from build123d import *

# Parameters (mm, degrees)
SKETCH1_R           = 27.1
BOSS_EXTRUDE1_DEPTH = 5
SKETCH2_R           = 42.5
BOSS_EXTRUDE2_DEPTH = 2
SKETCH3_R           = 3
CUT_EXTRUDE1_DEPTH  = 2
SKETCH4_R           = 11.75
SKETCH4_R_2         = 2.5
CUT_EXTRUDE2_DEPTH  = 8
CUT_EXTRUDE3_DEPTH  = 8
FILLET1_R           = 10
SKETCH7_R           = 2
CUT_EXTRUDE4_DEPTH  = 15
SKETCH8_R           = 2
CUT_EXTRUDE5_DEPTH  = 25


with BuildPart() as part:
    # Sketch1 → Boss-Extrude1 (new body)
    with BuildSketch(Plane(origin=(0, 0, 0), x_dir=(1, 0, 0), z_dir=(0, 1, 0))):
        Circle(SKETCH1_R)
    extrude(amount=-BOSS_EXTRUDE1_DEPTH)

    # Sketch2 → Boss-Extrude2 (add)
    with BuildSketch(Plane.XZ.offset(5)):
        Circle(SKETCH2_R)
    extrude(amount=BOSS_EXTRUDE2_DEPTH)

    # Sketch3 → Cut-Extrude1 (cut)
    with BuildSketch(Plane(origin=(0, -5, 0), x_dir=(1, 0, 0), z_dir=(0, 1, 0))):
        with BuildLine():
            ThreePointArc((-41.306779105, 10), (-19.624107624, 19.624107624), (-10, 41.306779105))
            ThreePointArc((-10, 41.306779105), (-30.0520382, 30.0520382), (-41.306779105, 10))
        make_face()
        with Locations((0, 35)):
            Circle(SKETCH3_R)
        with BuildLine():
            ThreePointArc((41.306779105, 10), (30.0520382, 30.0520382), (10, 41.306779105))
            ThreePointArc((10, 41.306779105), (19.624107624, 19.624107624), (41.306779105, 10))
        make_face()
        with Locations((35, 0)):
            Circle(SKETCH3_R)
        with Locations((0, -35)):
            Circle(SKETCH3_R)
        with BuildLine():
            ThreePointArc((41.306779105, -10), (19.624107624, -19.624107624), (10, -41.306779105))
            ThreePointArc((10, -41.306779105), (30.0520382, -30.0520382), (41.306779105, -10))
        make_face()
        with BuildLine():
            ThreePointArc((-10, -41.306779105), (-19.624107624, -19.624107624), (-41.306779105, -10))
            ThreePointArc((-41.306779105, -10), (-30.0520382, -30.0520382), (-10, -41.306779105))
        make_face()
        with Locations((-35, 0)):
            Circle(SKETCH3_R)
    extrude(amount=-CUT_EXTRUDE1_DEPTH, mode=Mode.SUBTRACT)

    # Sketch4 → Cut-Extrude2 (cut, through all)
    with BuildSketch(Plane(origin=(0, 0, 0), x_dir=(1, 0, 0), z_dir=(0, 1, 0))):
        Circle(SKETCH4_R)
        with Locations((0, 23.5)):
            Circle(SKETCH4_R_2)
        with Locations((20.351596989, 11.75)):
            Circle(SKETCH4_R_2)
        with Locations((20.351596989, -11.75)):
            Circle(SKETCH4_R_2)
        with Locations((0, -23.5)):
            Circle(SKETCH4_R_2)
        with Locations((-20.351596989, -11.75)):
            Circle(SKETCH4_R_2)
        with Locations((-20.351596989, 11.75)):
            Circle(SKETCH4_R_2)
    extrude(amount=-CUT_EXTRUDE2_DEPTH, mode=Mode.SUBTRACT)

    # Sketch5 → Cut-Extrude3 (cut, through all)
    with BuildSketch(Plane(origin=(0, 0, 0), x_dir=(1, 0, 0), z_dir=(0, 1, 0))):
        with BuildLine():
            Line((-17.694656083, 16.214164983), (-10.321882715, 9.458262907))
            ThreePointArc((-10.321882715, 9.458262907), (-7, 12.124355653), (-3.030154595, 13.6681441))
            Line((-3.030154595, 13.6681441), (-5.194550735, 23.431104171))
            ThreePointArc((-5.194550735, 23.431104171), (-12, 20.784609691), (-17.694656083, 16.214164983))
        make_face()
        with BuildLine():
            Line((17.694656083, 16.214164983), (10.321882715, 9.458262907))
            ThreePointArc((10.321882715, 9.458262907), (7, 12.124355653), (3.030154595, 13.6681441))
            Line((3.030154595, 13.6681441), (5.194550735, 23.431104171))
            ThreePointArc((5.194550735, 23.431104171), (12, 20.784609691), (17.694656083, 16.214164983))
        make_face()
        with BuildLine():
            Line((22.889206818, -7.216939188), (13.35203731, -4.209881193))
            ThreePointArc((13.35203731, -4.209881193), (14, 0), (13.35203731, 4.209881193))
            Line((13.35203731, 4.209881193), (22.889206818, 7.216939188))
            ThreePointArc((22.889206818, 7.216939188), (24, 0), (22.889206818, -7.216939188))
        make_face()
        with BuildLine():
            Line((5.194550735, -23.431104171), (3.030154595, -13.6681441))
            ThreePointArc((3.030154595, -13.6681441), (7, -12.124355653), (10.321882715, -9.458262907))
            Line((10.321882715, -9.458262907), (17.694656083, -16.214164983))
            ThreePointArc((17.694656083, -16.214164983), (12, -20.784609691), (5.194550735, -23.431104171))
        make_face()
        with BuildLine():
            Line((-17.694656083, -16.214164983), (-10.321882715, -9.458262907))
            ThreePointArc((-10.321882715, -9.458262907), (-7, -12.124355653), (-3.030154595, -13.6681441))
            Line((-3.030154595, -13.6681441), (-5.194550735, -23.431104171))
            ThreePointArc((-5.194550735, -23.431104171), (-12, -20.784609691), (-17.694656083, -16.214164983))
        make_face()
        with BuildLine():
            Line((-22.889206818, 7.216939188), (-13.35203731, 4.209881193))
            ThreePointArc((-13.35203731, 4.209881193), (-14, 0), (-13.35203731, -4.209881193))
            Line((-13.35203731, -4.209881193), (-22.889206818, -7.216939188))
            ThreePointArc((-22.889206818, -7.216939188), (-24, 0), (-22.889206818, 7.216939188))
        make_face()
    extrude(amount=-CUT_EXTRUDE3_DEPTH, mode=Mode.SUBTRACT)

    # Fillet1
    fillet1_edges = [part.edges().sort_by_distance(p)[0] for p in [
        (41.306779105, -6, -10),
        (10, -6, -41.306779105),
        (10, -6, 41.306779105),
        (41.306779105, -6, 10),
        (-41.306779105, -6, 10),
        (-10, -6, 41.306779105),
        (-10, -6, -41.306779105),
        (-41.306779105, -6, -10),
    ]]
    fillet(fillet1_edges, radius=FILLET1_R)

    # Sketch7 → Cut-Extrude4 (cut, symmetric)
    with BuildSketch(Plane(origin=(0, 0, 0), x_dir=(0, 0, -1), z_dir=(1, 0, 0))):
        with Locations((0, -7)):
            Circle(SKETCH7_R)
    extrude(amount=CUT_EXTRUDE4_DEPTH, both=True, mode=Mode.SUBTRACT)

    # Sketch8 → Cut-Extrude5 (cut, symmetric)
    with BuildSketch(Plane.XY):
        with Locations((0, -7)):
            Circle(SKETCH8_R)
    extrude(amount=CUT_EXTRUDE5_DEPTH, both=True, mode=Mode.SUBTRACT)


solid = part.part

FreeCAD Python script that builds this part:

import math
import FreeCAD as App
import Part
import Sketcher

V = App.Vector
Q = App.Units.Quantity


def edges_at(feature, points):
    """Names of the edges that pass closest to the given points."""
    edges = feature.Shape.Edges
    near = lambda p: min(range(len(edges)), key=lambda i: edges[i].distToShape(Part.Vertex(*p))[0])
    return sorted({f"Edge{near(p) + 1}" for p in points})

doc = App.newDocument("Part")
body = doc.addObject("PartDesign::Body", "Body")

# Sketch on XZ plane
sketch1 = body.newObject("Sketcher::SketchObject", "Sketch")
sketch1.AttachmentSupport = (doc.getObject("XZ_Plane"), [""])
sketch1.MapMode = "FlatFace"
sketch1.addGeometry(Part.Circle(V(0, 0, 0), V(0, 0, 1), 27.1), False)
sketch1.addConstraint(Sketcher.Constraint("Coincident", 0, 3, -1, 1))
sketch1.addConstraint(Sketcher.Constraint("Diameter", 0, Q("54.2 mm")))
pad1 = body.newObject("PartDesign::Pad", "Pad")
pad1.Profile = sketch1
pad1.Length = 5

# Sketch on XZ plane
sketch2 = body.newObject("Sketcher::SketchObject", "Sketch001")
sketch2.AttachmentSupport = (doc.getObject("XZ_Plane"), [""])
sketch2.MapMode = "FlatFace"
sketch2.AttachmentOffset = App.Placement(V(0, 0, 5), App.Rotation())
sketch2.addGeometry(Part.Circle(V(0, 0, 0), V(0, 0, 1), 42.5), False)
sketch2.addConstraint(Sketcher.Constraint("Coincident", 0, 3, -1, 1))
sketch2.addConstraint(Sketcher.Constraint("Diameter", 0, Q("85 mm")))
pad2 = body.newObject("PartDesign::Pad", "Pad001")
pad2.Profile = sketch2
pad2.Length = 2

# Sketch on XZ plane
sketch3 = body.newObject("Sketcher::SketchObject", "Sketch002")
sketch3.AttachmentSupport = (doc.getObject("XZ_Plane"), [""])
sketch3.MapMode = "FlatFace"
sketch3.AttachmentOffset = App.Placement(V(0, 0, 5), App.Rotation())
sketch3.addGeometry(Part.ArcOfCircle(Part.Circle(V(-42.958631, -42.958631, 0), V(0, 0, 1), 33), math.radians(2.869204), math.radians(87.130796)), False)
sketch3.addGeometry(Part.ArcOfCircle(Part.Circle(V(0, 0, 0), V(0, 0, 1), 42.5), math.radians(-166.391039), math.radians(-103.608961)), False)
sketch3.addGeometry(Part.Circle(V(0, -35, 0), V(0, 0, 1), 3), False)
sketch3.addGeometry(Part.ArcOfCircle(Part.Circle(V(0, 0, 0), V(0, 0, 1), 42.5), math.radians(-76.391039), math.radians(-13.608961)), False)
sketch3.addGeometry(Part.ArcOfCircle(Part.Circle(V(42.958631, -42.958631, 0), V(0, 0, 1), 33), math.radians(92.869204), math.radians(177.130796)), False)
sketch3.addGeometry(Part.Circle(V(35, 0, 0), V(0, 0, 1), 3), False)
sketch3.addGeometry(Part.Circle(V(0, 35, 0), V(0, 0, 1), 3), False)
sketch3.addGeometry(Part.ArcOfCircle(Part.Circle(V(42.958631, 42.958631, 0), V(0, 0, 1), 33), math.radians(-177.130796), math.radians(-92.869204)), False)
sketch3.addGeometry(Part.ArcOfCircle(Part.Circle(V(0, 0, 0), V(0, 0, 1), 42.5), math.radians(13.608961), math.radians(76.391039)), False)
sketch3.addGeometry(Part.ArcOfCircle(Part.Circle(V(-42.958631, 42.958631, 0), V(0, 0, 1), 33), math.radians(-87.130796), math.radians(-2.869204)), False)
sketch3.addGeometry(Part.ArcOfCircle(Part.Circle(V(0, 0, 0), V(0, 0, 1), 42.5), math.radians(103.608961), math.radians(166.391039)), False)
sketch3.addGeometry(Part.Circle(V(-35, 0, 0), V(0, 0, 1), 3), False)
sketch3.addConstraint(Sketcher.Constraint("Coincident", 0, 1, 1, 2))
sketch3.addConstraint(Sketcher.Constraint("Coincident", 1, 1, 0, 2))
sketch3.addConstraint(Sketcher.Constraint("Coincident", 3, 1, 4, 2))
sketch3.addConstraint(Sketcher.Constraint("Coincident", 4, 1, 3, 2))
sketch3.addConstraint(Sketcher.Constraint("Coincident", 7, 1, 8, 2))
sketch3.addConstraint(Sketcher.Constraint("Coincident", 8, 1, 7, 2))
sketch3.addConstraint(Sketcher.Constraint("Coincident", 9, 1, 10, 2))
sketch3.addConstraint(Sketcher.Constraint("Coincident", 10, 1, 9, 2))
sketch3.addConstraint(Sketcher.Constraint("Coincident", 1, 3, -1, 1))
sketch3.addConstraint(Sketcher.Constraint("Coincident", 3, 3, -1, 1))
sketch3.addConstraint(Sketcher.Constraint("Coincident", 8, 3, -1, 1))
sketch3.addConstraint(Sketcher.Constraint("Coincident", 10, 3, -1, 1))
sketch3.addConstraint(Sketcher.Constraint("Equal", 1, 3))
sketch3.addConstraint(Sketcher.Constraint("Equal", 0, 4))
sketch3.addConstraint(Sketcher.Constraint("Equal", 2, 5))
sketch3.addConstraint(Sketcher.Constraint("Equal", 5, 6))
sketch3.addConstraint(Sketcher.Constraint("Equal", 4, 7))
sketch3.addConstraint(Sketcher.Constraint("Equal", 3, 8))
sketch3.addConstraint(Sketcher.Constraint("Equal", 7, 9))
sketch3.addConstraint(Sketcher.Constraint("Equal", 8, 10))
sketch3.addConstraint(Sketcher.Constraint("Equal", 6, 11))
sketch3.addConstraint(Sketcher.Constraint("Symmetric", 2, 3, 6, 3, -1, 1))
sketch3.addConstraint(Sketcher.Constraint("Symmetric", 0, 3, 7, 3, -1, 1))
sketch3.addConstraint(Sketcher.Constraint("Symmetric", 4, 3, 9, 3, -1, 1))
sketch3.addConstraint(Sketcher.Constraint("Symmetric", 5, 3, 11, 3, -1, 1))
sketch3.addConstraint(Sketcher.Constraint("Symmetric", 0, 3, 4, 3, -2))
sketch3.addConstraint(Sketcher.Constraint("PointOnObject", 2, 3, -2))
sketch3.addConstraint(Sketcher.Constraint("PointOnObject", 5, 3, -1))
sketch3.addConstraint(Sketcher.Constraint("Diameter", 2, Q("6 mm")))
sketch3.addConstraint(Sketcher.Constraint("Radius", 0, Q("33 mm")))
sketch3.addConstraint(Sketcher.Constraint("Radius", 1, Q("42.5 mm")))
sketch3.addConstraint(Sketcher.Constraint("DistanceY", 2, 3, -1, 1, Q("35 mm")))
sketch3.addConstraint(Sketcher.Constraint("DistanceX", -1, 1, 5, 3, Q("35 mm")))
sketch3.addConstraint(Sketcher.Constraint("DistanceX", 0, 1, -1, 1, Q("10 mm")))
sketch3.addConstraint(Sketcher.Constraint("DistanceY", 1, 1, -1, 1, Q("10 mm")))
pocket1 = body.newObject("PartDesign::Pocket", "Pocket")
pocket1.Profile = sketch3
pocket1.Length = 2
pocket1.Reversed = True

# Sketch on XZ plane
sketch4 = body.newObject("Sketcher::SketchObject", "Sketch003")
sketch4.AttachmentSupport = (doc.getObject("XZ_Plane"), [""])
sketch4.MapMode = "FlatFace"
sketch4.addGeometry(Part.Circle(V(0, 0, 0), V(0, 0, 1), 11.75), False)
sketch4.addGeometry(Part.Circle(V(0, -23.5, 0), V(0, 0, 1), 2.5), False)
sketch4.addGeometry(Part.Circle(V(20.351597, -11.75, 0), V(0, 0, 1), 2.5), False)
sketch4.addGeometry(Part.Circle(V(20.351597, 11.75, 0), V(0, 0, 1), 2.5), False)
sketch4.addGeometry(Part.Circle(V(0, 23.5, 0), V(0, 0, 1), 2.5), False)
sketch4.addGeometry(Part.Circle(V(-20.351597, 11.75, 0), V(0, 0, 1), 2.5), False)
sketch4.addGeometry(Part.Circle(V(-20.351597, -11.75, 0), V(0, 0, 1), 2.5), False)
sketch4.addConstraint(Sketcher.Constraint("Coincident", 0, 3, -1, 1))
sketch4.addConstraint(Sketcher.Constraint("Equal", 1, 2))
sketch4.addConstraint(Sketcher.Constraint("Equal", 2, 3))
sketch4.addConstraint(Sketcher.Constraint("Equal", 3, 4))
sketch4.addConstraint(Sketcher.Constraint("Equal", 4, 5))
sketch4.addConstraint(Sketcher.Constraint("Equal", 5, 6))
sketch4.addConstraint(Sketcher.Constraint("Symmetric", 1, 3, 4, 3, -1, 1))
sketch4.addConstraint(Sketcher.Constraint("Symmetric", 2, 3, 5, 3, -1, 1))
sketch4.addConstraint(Sketcher.Constraint("Symmetric", 3, 3, 6, 3, -1, 1))
sketch4.addConstraint(Sketcher.Constraint("Symmetric", 3, 3, 5, 3, -2))
sketch4.addConstraint(Sketcher.Constraint("PointOnObject", 1, 3, -2))
sketch4.addConstraint(Sketcher.Constraint("Diameter", 1, Q("5 mm")))
sketch4.addConstraint(Sketcher.Constraint("Diameter", 0, Q("23.5 mm")))
sketch4.addConstraint(Sketcher.Constraint("DistanceY", 1, 3, 4, 3, Q("47 mm")))
sketch4.addConstraint(Sketcher.Constraint("DistanceY", 2, 3, 3, 3, Q("23.5 mm")))
sketch4.addConstraint(Sketcher.Constraint("DistanceX", -1, 1, 2, 3, Q("20.351597 mm")))
pocket2 = body.newObject("PartDesign::Pocket", "Pocket001")
pocket2.Profile = sketch4
pocket2.Type = "ThroughAll"
pocket2.Reversed = True

# Sketch on XZ plane
sketch5 = body.newObject("Sketcher::SketchObject", "Sketch004")
sketch5.AttachmentSupport = (doc.getObject("XZ_Plane"), [""])
sketch5.MapMode = "FlatFace"
sketch5.addGeometry(Part.LineSegment(V(-17.694656, -16.214165, 0), V(-10.321883, -9.458263, 0)), False)
sketch5.addGeometry(Part.ArcOfCircle(Part.Circle(V(0, 0, 0), V(0, 0, 1), 14), math.radians(-137.5), math.radians(-102.5)), False)
sketch5.addGeometry(Part.LineSegment(V(-3.030155, -13.668144, 0), V(-5.194551, -23.431104, 0)), False)
sketch5.addGeometry(Part.ArcOfCircle(Part.Circle(V(0, 0, 0), V(0, 0, 1), 24), math.radians(-137.5), math.radians(-102.5)), False)
sketch5.addGeometry(Part.LineSegment(V(10.321883, -9.458263, 0), V(17.694656, -16.214165, 0)), False)
sketch5.addGeometry(Part.ArcOfCircle(Part.Circle(V(0, 0, 0), V(0, 0, 1), 24), math.radians(-77.5), math.radians(-42.5)), False)
sketch5.addGeometry(Part.LineSegment(V(5.194551, -23.431104, 0), V(3.030155, -13.668144, 0)), False)
sketch5.addGeometry(Part.ArcOfCircle(Part.Circle(V(0, 0, 0), V(0, 0, 1), 14), math.radians(-77.5), math.radians(-42.5)), False)
sketch5.addGeometry(Part.LineSegment(V(13.352037, 4.209881, 0), V(22.889207, 7.216939, 0)), False)
sketch5.addGeometry(Part.ArcOfCircle(Part.Circle(V(0, 0, 0), V(0, 0, 1), 24), math.radians(-17.5), math.radians(17.5)), False)
sketch5.addGeometry(Part.LineSegment(V(22.889207, -7.216939, 0), V(13.352037, -4.209881, 0)), False)
sketch5.addGeometry(Part.ArcOfCircle(Part.Circle(V(0, 0, 0), V(0, 0, 1), 14), math.radians(-17.5), math.radians(17.5)), False)
sketch5.addGeometry(Part.LineSegment(V(3.030155, 13.668144, 0), V(5.194551, 23.431104, 0)), False)
sketch5.addGeometry(Part.ArcOfCircle(Part.Circle(V(0, 0, 0), V(0, 0, 1), 24), math.radians(42.5), math.radians(77.5)), False)
sketch5.addGeometry(Part.LineSegment(V(17.694656, 16.214165, 0), V(10.321883, 9.458263, 0)), False)
sketch5.addGeometry(Part.ArcOfCircle(Part.Circle(V(0, 0, 0), V(0, 0, 1), 14), math.radians(42.5), math.radians(77.5)), False)
sketch5.addGeometry(Part.LineSegment(V(-10.321883, 9.458263, 0), V(-17.694656, 16.214165, 0)), False)
sketch5.addGeometry(Part.ArcOfCircle(Part.Circle(V(0, 0, 0), V(0, 0, 1), 24), math.radians(102.5), math.radians(137.5)), False)
sketch5.addGeometry(Part.LineSegment(V(-5.194551, 23.431104, 0), V(-3.030155, 13.668144, 0)), False)
sketch5.addGeometry(Part.ArcOfCircle(Part.Circle(V(0, 0, 0), V(0, 0, 1), 14), math.radians(102.5), math.radians(137.5)), False)
sketch5.addGeometry(Part.LineSegment(V(-13.352037, -4.209881, 0), V(-22.889207, -7.216939, 0)), False)
sketch5.addGeometry(Part.ArcOfCircle(Part.Circle(V(0, 0, 0), V(0, 0, 1), 24), math.radians(162.5), math.radians(197.5)), False)
sketch5.addGeometry(Part.LineSegment(V(-22.889207, 7.216939, 0), V(-13.352037, 4.209881, 0)), False)
sketch5.addGeometry(Part.ArcOfCircle(Part.Circle(V(0, 0, 0), V(0, 0, 1), 14), math.radians(162.5), math.radians(197.5)), False)
sketch5.addConstraint(Sketcher.Constraint("Coincident", 0, 2, 1, 1))
sketch5.addConstraint(Sketcher.Constraint("Coincident", 1, 2, 2, 1))
sketch5.addConstraint(Sketcher.Constraint("Coincident", 2, 2, 3, 2))
sketch5.addConstraint(Sketcher.Constraint("Coincident", 3, 1, 0, 1))
sketch5.addConstraint(Sketcher.Constraint("Coincident", 4, 2, 5, 2))
sketch5.addConstraint(Sketcher.Constraint("Coincident", 5, 1, 6, 1))
sketch5.addConstraint(Sketcher.Constraint("Coincident", 6, 2, 7, 1))
sketch5.addConstraint(Sketcher.Constraint("Coincident", 7, 2, 4, 1))
sketch5.addConstraint(Sketcher.Constraint("Coincident", 8, 2, 9, 2))
sketch5.addConstraint(Sketcher.Constraint("Coincident", 9, 1, 10, 1))
sketch5.addConstraint(Sketcher.Constraint("Coincident", 10, 2, 11, 1))
sketch5.addConstraint(Sketcher.Constraint("Coincident", 11, 2, 8, 1))
sketch5.addConstraint(Sketcher.Constraint("Coincident", 12, 2, 13, 2))
sketch5.addConstraint(Sketcher.Constraint("Coincident", 13, 1, 14, 1))
sketch5.addConstraint(Sketcher.Constraint("Coincident", 14, 2, 15, 1))
sketch5.addConstraint(Sketcher.Constraint("Coincident", 15, 2, 12, 1))
sketch5.addConstraint(Sketcher.Constraint("Coincident", 16, 2, 17, 2))
sketch5.addConstraint(Sketcher.Constraint("Coincident", 17, 1, 18, 1))
sketch5.addConstraint(Sketcher.Constraint("Coincident", 18, 2, 19, 1))
sketch5.addConstraint(Sketcher.Constraint("Coincident", 19, 2, 16, 1))
sketch5.addConstraint(Sketcher.Constraint("Coincident", 20, 2, 21, 2))
sketch5.addConstraint(Sketcher.Constraint("Coincident", 21, 1, 22, 1))
sketch5.addConstraint(Sketcher.Constraint("Coincident", 22, 2, 23, 1))
sketch5.addConstraint(Sketcher.Constraint("Coincident", 23, 2, 20, 1))
sketch5.addConstraint(Sketcher.Constraint("Coincident", 1, 3, -1, 1))
sketch5.addConstraint(Sketcher.Constraint("Coincident", 3, 3, -1, 1))
sketch5.addConstraint(Sketcher.Constraint("Coincident", 5, 3, -1, 1))
sketch5.addConstraint(Sketcher.Constraint("Coincident", 7, 3, -1, 1))
sketch5.addConstraint(Sketcher.Constraint("Coincident", 9, 3, -1, 1))
sketch5.addConstraint(Sketcher.Constraint("Coincident", 11, 3, -1, 1))
sketch5.addConstraint(Sketcher.Constraint("Coincident", 13, 3, -1, 1))
sketch5.addConstraint(Sketcher.Constraint("Coincident", 15, 3, -1, 1))
sketch5.addConstraint(Sketcher.Constraint("Coincident", 17, 3, -1, 1))
sketch5.addConstraint(Sketcher.Constraint("Coincident", 19, 3, -1, 1))
sketch5.addConstraint(Sketcher.Constraint("Coincident", 21, 3, -1, 1))
sketch5.addConstraint(Sketcher.Constraint("Coincident", 23, 3, -1, 1))
sketch5.addConstraint(Sketcher.Constraint("Equal", 3, 5))
sketch5.addConstraint(Sketcher.Constraint("Equal", 1, 7))
sketch5.addConstraint(Sketcher.Constraint("Equal", 5, 9))
sketch5.addConstraint(Sketcher.Constraint("Equal", 7, 11))
sketch5.addConstraint(Sketcher.Constraint("Equal", 9, 13))
sketch5.addConstraint(Sketcher.Constraint("Equal", 11, 15))
sketch5.addConstraint(Sketcher.Constraint("Equal", 13, 17))
sketch5.addConstraint(Sketcher.Constraint("Equal", 15, 19))
sketch5.addConstraint(Sketcher.Constraint("Equal", 17, 21))
sketch5.addConstraint(Sketcher.Constraint("Equal", 19, 23))
sketch5.addConstraint(Sketcher.Constraint("Parallel", 2, 12))
sketch5.addConstraint(Sketcher.Constraint("Parallel", 0, 14))
sketch5.addConstraint(Sketcher.Constraint("Parallel", 4, 16))
sketch5.addConstraint(Sketcher.Constraint("Parallel", 6, 18))
sketch5.addConstraint(Sketcher.Constraint("Parallel", 8, 20))
sketch5.addConstraint(Sketcher.Constraint("Parallel", 10, 22))
sketch5.addConstraint(Sketcher.Constraint("Horizontal", 3, 1, 4, 2))
sketch5.addConstraint(Sketcher.Constraint("Horizontal", 2, 2, 5, 1))
sketch5.addConstraint(Sketcher.Constraint("Horizontal", 1, 2, 6, 2))
sketch5.addConstraint(Sketcher.Constraint("Horizontal", 0, 2, 7, 2))
sketch5.addConstraint(Sketcher.Constraint("Horizontal", 13, 1, 16, 2))
sketch5.addConstraint(Sketcher.Constraint("Horizontal", 12, 2, 17, 1))
sketch5.addConstraint(Sketcher.Constraint("Horizontal", 9, 1, 20, 2))
sketch5.addConstraint(Sketcher.Constraint("Horizontal", 8, 2, 21, 1))
sketch5.addConstraint(Sketcher.Constraint("Horizontal", 11, 2, 22, 2))
sketch5.addConstraint(Sketcher.Constraint("Vertical", 8, 2, 9, 1))
sketch5.addConstraint(Sketcher.Constraint("Vertical", 5, 1, 12, 2))
sketch5.addConstraint(Sketcher.Constraint("Vertical", 4, 2, 13, 1))
sketch5.addConstraint(Sketcher.Constraint("Radius", 1, Q("14 mm")))
sketch5.addConstraint(Sketcher.Constraint("Radius", 3, Q("24 mm")))
sketch5.addConstraint(Sketcher.Constraint("Angle", 0, Q("42.5 deg")))
sketch5.addConstraint(Sketcher.Constraint("Angle", 2, Q("-102.5 deg")))
sketch5.addConstraint(Sketcher.Constraint("Angle", 8, Q("17.5 deg")))
sketch5.addConstraint(Sketcher.Constraint("DistanceX", 3, 1, 1, 2, Q("14.664501 mm")))
sketch5.addConstraint(Sketcher.Constraint("DistanceX", 2, 2, 5, 1, Q("10.389101 mm")))
sketch5.addConstraint(Sketcher.Constraint("DistanceY", -1, 1, 8, 2, Q("7.216939 mm")))
pocket3 = body.newObject("PartDesign::Pocket", "Pocket002")
pocket3.Profile = sketch5
pocket3.Type = "ThroughAll"
pocket3.Reversed = True
doc.recompute()

fillet = body.newObject("PartDesign::Fillet", "Fillet")
fillet.Base = (pocket3, edges_at(pocket3, [
    (41.307, -6, -10),
    (10, -6, -41.307),
    (10, -6, 41.307),
    (41.307, -6, 10),
    (-41.307, -6, 10),
    (-10, -6, 41.307),
    (-10, -6, -41.307),
    (-41.307, -6, -10),
]))
fillet.Radius = 10

# Sketch on YZ plane
sketch6 = body.newObject("Sketcher::SketchObject", "Sketch005")
sketch6.AttachmentSupport = (doc.getObject("YZ_Plane"), [""])
sketch6.MapMode = "FlatFace"
sketch6.addGeometry(Part.Circle(V(-7, 0, 0), V(0, 0, 1), 2), False)
sketch6.addConstraint(Sketcher.Constraint("PointOnObject", 0, 3, -1))
sketch6.addConstraint(Sketcher.Constraint("Diameter", 0, Q("4 mm")))
sketch6.addConstraint(Sketcher.Constraint("DistanceX", 0, 3, -1, 1, Q("7 mm")))
pocket4 = body.newObject("PartDesign::Pocket", "Pocket003")
pocket4.Profile = sketch6
pocket4.Length = 30
pocket4.Midplane = True

# Sketch on XY plane
sketch7 = body.newObject("Sketcher::SketchObject", "Sketch006")
sketch7.AttachmentSupport = (doc.getObject("XY_Plane"), [""])
sketch7.MapMode = "FlatFace"
sketch7.addGeometry(Part.Circle(V(0, -7, 0), V(0, 0, 1), 2), False)
sketch7.addConstraint(Sketcher.Constraint("PointOnObject", 0, 3, -2))
sketch7.addConstraint(Sketcher.Constraint("Diameter", 0, Q("4 mm")))
sketch7.addConstraint(Sketcher.Constraint("DistanceY", 0, 3, -1, 1, Q("7 mm")))
pocket5 = body.newObject("PartDesign::Pocket", "Pocket004")
pocket5.Profile = sketch7
pocket5.Length = 50
pocket5.Midplane = True

doc.recompute()
